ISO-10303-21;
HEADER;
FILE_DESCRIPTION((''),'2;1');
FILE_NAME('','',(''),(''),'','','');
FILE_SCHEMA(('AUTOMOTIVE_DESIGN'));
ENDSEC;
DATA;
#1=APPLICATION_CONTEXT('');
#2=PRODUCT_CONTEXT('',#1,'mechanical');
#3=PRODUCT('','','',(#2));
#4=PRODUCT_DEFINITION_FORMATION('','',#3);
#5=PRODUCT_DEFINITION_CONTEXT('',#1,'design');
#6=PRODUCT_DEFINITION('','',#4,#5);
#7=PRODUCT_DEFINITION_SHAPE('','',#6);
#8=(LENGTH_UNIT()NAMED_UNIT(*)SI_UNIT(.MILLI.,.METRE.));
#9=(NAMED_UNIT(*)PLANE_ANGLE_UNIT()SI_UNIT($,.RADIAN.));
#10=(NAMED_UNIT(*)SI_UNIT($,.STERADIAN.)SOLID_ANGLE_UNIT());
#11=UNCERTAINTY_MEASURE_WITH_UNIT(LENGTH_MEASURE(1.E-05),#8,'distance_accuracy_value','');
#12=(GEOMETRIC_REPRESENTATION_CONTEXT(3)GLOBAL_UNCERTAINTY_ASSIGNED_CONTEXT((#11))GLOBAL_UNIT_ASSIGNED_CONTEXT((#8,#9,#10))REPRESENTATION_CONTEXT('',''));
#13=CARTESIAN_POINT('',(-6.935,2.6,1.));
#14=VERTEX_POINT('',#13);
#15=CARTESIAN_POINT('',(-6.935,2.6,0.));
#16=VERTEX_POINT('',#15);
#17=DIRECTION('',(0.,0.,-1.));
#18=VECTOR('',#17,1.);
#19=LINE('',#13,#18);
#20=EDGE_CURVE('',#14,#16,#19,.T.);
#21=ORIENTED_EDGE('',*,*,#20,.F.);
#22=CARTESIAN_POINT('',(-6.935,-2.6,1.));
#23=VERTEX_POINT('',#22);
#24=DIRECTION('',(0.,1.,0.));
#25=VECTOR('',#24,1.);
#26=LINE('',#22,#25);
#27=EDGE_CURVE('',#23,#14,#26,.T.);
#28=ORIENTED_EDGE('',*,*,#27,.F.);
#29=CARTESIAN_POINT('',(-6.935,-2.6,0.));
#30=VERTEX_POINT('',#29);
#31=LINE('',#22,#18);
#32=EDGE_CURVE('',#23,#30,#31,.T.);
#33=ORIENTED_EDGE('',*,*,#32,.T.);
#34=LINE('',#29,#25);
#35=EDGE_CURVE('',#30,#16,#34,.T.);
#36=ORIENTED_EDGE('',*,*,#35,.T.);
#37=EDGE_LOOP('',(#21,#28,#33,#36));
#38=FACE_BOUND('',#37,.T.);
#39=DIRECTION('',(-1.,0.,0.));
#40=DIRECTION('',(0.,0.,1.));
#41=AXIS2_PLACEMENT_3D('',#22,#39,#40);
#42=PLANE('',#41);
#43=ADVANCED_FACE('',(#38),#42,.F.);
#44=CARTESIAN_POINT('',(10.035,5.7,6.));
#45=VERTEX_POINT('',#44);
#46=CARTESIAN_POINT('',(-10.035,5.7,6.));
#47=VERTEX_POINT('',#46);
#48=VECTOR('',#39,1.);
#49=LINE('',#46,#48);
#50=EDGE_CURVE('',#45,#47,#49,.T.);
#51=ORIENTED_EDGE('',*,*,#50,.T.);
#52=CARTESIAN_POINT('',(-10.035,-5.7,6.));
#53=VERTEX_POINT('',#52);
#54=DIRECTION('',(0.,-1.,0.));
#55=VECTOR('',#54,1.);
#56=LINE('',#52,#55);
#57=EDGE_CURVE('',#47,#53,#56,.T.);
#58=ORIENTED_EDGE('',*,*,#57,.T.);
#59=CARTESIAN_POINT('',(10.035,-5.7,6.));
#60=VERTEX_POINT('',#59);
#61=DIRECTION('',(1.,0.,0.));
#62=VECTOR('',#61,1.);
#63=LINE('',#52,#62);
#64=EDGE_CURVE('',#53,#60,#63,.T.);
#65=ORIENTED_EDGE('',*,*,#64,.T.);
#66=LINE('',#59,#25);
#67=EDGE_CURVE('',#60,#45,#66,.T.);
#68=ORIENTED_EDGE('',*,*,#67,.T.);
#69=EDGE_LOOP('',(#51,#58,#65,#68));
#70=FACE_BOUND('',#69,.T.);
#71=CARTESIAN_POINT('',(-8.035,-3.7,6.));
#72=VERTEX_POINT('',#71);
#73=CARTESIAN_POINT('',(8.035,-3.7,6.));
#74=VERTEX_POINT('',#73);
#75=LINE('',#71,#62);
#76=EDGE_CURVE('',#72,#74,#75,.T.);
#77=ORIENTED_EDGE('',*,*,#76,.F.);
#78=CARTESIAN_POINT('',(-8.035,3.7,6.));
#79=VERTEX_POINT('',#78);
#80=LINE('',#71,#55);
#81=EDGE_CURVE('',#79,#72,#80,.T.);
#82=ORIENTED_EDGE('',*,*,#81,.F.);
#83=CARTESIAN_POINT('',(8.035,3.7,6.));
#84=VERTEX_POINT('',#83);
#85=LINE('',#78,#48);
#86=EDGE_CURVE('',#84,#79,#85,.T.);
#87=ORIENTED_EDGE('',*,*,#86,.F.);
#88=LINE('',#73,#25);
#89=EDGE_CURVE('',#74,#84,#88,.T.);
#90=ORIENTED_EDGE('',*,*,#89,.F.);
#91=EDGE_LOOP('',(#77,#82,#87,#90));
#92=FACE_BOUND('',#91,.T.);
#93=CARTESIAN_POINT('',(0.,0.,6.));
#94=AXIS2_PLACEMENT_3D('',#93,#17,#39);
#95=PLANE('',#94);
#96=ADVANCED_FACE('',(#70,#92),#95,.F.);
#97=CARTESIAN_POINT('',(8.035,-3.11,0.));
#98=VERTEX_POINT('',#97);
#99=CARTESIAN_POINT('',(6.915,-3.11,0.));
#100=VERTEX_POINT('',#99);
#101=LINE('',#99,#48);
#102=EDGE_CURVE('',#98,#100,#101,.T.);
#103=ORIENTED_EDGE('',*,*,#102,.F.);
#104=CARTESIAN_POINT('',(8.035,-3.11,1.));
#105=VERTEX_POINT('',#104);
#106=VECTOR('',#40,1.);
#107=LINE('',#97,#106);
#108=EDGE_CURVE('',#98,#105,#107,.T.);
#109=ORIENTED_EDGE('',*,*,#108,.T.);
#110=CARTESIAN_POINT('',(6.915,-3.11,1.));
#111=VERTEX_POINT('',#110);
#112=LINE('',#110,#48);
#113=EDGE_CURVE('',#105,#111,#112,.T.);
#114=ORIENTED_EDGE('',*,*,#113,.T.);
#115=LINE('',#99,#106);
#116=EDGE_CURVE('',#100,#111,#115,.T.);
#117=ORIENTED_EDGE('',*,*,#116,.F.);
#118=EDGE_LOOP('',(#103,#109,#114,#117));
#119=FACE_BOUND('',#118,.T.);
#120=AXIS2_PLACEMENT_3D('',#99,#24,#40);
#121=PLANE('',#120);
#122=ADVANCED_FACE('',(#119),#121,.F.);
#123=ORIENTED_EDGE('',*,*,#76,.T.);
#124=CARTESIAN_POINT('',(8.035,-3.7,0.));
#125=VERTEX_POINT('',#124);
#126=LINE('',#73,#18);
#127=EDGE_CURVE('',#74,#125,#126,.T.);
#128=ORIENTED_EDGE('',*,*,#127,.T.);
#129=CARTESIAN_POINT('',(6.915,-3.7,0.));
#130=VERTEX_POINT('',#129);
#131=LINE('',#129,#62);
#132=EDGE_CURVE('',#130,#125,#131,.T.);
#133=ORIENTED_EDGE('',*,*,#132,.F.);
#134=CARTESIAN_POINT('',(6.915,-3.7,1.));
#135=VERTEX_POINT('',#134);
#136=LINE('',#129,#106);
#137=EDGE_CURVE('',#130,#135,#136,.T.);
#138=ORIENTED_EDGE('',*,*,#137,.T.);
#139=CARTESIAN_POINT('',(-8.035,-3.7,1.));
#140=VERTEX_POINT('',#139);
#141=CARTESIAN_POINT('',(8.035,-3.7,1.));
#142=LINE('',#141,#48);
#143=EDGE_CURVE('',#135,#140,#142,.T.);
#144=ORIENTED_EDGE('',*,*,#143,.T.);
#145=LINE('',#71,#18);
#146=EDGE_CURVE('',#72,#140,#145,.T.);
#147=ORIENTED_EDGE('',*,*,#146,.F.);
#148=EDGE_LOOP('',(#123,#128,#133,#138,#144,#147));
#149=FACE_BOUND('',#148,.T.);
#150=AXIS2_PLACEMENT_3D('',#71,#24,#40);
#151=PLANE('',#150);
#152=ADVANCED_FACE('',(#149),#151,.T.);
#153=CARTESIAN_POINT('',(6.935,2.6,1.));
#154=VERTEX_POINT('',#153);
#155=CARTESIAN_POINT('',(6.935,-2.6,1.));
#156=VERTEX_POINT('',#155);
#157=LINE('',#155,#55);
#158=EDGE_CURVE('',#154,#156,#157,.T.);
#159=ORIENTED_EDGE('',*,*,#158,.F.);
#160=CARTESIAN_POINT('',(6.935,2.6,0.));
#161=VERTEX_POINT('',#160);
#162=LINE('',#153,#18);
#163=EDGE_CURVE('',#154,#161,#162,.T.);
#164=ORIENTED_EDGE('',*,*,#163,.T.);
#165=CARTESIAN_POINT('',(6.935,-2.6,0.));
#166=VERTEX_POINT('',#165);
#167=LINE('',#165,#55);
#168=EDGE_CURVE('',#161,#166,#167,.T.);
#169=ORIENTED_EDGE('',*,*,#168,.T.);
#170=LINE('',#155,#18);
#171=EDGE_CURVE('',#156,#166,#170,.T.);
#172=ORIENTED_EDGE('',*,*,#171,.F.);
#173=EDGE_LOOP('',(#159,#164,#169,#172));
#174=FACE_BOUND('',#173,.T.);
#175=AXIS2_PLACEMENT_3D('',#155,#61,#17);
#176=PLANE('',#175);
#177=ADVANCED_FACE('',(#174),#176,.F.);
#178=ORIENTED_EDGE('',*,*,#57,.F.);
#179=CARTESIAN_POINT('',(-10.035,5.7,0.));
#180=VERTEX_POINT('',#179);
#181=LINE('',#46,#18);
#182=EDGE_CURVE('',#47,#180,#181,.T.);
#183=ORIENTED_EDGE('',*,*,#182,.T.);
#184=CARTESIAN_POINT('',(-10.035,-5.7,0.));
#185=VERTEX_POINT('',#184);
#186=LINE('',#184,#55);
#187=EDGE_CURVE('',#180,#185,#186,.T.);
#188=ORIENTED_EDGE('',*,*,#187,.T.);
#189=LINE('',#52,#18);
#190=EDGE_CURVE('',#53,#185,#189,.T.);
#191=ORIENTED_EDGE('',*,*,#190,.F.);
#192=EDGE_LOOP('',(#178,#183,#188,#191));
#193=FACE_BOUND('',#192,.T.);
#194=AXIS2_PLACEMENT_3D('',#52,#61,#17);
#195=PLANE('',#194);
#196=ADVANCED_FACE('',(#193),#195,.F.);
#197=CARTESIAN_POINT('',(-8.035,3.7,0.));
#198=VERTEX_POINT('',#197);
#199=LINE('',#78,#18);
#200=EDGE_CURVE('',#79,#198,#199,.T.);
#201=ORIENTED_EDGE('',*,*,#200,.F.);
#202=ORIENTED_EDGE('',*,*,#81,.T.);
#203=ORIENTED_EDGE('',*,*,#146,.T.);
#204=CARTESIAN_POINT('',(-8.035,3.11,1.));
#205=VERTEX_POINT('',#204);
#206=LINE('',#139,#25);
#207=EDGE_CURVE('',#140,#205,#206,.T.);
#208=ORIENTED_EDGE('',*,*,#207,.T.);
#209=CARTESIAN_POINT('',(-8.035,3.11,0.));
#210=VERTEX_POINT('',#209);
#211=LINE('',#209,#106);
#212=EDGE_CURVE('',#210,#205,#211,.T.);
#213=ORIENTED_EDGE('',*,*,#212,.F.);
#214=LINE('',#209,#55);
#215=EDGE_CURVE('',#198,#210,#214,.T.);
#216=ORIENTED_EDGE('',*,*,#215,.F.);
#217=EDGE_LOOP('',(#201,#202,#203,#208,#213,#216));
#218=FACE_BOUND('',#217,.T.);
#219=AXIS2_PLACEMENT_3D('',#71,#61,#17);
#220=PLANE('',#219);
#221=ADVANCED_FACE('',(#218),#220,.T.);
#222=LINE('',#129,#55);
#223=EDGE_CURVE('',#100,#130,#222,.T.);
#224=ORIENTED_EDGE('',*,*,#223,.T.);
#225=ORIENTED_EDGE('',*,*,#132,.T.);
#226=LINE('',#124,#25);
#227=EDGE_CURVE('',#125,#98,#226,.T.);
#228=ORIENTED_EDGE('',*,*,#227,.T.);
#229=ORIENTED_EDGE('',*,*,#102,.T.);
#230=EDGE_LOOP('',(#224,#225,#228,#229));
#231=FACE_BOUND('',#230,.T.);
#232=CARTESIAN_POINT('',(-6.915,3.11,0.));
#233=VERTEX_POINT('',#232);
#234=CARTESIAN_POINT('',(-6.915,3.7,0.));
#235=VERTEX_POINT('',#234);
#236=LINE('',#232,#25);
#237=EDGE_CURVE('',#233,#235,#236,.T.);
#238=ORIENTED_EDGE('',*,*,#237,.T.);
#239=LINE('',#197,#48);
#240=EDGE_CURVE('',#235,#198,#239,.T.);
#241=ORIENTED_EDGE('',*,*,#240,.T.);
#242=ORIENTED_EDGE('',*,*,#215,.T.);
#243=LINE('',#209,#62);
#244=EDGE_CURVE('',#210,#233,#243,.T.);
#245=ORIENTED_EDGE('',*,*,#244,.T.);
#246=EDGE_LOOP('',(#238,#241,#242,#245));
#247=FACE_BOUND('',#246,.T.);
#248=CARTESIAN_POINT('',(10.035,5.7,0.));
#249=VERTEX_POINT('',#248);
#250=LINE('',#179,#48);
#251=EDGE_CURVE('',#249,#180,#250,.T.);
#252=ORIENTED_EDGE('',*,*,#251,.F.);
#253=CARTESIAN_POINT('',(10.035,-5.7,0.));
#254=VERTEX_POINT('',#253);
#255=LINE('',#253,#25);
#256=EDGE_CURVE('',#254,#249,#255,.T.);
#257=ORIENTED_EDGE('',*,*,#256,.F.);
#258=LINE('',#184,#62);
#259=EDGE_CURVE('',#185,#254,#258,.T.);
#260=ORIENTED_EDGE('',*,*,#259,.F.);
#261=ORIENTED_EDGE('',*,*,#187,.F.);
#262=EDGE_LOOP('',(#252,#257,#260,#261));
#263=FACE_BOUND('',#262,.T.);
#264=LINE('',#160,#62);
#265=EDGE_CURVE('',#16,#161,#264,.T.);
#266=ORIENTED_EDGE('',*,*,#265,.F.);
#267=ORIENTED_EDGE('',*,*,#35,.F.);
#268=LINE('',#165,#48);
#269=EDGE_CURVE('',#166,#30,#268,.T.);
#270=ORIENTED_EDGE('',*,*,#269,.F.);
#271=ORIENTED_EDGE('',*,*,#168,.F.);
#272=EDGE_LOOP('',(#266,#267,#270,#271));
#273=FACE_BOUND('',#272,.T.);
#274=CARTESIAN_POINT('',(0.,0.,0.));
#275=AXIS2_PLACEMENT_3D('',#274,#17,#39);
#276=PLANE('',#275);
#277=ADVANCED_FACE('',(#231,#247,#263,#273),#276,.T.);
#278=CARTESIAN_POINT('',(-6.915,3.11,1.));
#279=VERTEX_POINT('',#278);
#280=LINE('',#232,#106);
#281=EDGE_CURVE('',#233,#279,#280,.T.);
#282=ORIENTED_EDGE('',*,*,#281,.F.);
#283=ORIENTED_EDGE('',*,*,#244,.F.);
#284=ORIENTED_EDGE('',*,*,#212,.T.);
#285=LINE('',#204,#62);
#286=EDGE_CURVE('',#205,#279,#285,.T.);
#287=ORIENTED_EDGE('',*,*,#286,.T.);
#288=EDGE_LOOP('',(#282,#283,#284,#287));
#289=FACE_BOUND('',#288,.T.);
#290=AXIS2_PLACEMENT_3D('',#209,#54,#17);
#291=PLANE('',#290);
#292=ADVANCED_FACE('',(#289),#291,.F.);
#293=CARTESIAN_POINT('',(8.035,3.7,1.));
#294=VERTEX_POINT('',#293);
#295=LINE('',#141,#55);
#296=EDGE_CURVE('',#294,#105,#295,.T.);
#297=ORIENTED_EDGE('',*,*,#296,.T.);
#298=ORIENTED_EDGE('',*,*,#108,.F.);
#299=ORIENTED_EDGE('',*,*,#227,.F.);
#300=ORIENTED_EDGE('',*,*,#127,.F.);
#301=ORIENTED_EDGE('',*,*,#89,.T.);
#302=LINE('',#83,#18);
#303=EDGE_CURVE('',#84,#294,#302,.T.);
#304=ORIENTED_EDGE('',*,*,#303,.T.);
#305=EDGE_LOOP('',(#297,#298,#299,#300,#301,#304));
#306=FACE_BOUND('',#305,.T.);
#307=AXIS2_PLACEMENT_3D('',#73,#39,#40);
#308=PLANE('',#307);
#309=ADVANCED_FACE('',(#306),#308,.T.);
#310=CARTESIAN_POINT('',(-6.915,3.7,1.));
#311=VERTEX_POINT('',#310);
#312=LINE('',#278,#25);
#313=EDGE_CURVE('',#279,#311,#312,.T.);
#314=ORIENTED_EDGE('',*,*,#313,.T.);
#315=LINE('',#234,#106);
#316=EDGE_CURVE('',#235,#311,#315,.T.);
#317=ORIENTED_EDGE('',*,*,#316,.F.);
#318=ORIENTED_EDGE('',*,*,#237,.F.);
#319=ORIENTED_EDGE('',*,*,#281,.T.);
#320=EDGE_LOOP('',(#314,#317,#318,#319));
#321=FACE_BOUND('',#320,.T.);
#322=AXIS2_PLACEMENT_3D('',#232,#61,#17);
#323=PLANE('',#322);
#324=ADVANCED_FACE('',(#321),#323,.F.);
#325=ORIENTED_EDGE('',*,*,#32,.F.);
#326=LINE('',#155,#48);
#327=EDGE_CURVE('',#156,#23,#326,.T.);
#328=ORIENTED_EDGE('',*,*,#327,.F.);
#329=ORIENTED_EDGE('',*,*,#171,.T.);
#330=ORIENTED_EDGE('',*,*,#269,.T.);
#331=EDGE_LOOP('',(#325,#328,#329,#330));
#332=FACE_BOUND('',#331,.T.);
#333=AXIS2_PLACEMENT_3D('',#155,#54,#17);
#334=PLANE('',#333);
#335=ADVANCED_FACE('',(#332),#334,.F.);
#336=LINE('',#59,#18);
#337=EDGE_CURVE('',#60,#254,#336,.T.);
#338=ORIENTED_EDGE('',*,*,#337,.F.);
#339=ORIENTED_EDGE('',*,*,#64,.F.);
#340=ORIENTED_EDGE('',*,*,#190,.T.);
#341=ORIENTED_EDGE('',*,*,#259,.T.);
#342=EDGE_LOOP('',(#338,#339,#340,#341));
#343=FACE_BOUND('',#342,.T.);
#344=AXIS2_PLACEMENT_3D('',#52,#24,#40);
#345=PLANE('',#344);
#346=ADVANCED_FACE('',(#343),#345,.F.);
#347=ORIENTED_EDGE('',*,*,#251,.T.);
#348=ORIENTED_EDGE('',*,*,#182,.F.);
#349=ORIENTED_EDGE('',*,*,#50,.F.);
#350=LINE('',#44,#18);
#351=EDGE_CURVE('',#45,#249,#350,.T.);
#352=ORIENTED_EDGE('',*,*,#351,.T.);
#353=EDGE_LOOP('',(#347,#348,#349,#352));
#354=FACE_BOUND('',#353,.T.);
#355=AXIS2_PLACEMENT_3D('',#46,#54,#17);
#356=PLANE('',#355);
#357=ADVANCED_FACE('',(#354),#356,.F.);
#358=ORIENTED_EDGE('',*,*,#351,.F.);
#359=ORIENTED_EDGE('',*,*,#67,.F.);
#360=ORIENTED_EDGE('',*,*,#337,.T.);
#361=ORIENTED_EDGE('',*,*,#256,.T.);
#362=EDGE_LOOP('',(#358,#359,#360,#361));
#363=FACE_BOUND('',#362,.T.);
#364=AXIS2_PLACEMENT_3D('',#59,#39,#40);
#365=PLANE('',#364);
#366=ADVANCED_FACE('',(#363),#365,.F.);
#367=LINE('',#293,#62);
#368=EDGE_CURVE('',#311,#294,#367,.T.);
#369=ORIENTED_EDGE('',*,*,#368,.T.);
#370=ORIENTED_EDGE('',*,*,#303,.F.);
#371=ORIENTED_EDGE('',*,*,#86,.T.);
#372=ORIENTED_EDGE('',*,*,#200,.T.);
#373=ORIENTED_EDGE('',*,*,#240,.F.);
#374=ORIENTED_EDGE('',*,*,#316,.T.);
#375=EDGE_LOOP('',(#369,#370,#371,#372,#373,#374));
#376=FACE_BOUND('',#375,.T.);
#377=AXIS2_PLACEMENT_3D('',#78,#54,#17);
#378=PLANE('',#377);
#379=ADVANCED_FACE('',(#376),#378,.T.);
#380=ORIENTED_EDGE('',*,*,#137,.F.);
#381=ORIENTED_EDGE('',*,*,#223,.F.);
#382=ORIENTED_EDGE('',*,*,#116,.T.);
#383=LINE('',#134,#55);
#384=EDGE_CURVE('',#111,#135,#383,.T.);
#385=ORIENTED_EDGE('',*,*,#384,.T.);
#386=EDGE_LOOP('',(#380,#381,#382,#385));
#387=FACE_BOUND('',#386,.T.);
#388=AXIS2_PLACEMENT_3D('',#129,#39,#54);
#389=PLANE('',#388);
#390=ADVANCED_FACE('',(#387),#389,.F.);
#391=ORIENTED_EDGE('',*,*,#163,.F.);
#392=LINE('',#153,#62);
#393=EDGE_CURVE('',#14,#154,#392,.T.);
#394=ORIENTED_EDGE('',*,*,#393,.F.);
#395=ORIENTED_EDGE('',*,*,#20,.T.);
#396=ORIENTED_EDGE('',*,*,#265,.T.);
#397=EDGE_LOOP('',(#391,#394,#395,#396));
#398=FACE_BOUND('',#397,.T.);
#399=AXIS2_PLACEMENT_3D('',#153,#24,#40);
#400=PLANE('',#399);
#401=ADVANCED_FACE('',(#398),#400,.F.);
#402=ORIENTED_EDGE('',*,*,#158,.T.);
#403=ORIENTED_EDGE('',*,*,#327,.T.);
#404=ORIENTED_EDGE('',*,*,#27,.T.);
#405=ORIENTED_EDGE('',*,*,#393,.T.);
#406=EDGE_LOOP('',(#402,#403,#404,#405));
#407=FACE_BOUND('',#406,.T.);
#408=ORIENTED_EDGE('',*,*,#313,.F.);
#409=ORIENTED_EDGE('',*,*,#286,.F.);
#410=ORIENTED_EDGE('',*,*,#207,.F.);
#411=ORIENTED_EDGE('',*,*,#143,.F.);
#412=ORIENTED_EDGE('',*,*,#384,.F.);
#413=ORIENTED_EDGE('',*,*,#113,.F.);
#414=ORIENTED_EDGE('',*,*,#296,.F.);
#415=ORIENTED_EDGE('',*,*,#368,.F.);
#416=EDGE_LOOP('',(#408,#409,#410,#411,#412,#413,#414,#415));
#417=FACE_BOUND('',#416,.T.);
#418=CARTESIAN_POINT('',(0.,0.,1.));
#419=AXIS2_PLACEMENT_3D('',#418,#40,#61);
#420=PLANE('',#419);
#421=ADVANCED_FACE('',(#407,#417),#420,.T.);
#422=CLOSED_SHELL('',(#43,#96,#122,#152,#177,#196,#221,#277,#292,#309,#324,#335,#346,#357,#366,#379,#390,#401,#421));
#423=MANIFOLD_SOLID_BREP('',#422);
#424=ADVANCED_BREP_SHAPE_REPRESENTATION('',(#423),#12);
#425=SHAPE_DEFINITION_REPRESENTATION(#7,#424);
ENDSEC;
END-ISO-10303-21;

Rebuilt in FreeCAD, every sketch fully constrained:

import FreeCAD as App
import Part
import Sketcher
from FreeCAD import Vector

doc = App.newDocument("Part")
body = doc.addObject("PartDesign::Body", "Body")

# Sketch on XY plane
sketch1 = body.newObject("Sketcher::SketchObject", "Sketch")
sketch1.AttachmentSupport = (doc.getObject("XY_Plane"), [""])
sketch1.MapMode = "FlatFace"
sketch1.addGeometry([
    Part.LineSegment(Vector(-10, 6, 0), Vector(-10, -6, 0)),  # 0
    Part.LineSegment(Vector(-10, -6, 0), Vector(10, -6, 0)),  # 1
    Part.LineSegment(Vector(10, -6, 0), Vector(10, 6, 0)),  # 2
    Part.LineSegment(Vector(10, 6, 0), Vector(-10, 6, 0)),  # 3
    Part.LineSegment(Vector(8, -4, 0), Vector(-8, -4, 0)),  # 4
    Part.LineSegment(Vector(-8, -4, 0), Vector(-8, 4, 0)),  # 5
    Part.LineSegment(Vector(-8, 4, 0), Vector(8, 4, 0)),  # 6
    Part.LineSegment(Vector(8, 4, 0), Vector(8, -4, 0)),  # 7
], False)
sketch1.addConstraint([
    Sketcher.Constraint("Coincident", 0, 2, 1, 1),
    Sketcher.Constraint("Coincident", 1, 2, 2, 1),
    Sketcher.Constraint("Coincident", 2, 2, 3, 1),
    Sketcher.Constraint("Coincident", 3, 2, 0, 1),
    Sketcher.Constraint("Coincident", 4, 2, 5, 1),
    Sketcher.Constraint("Coincident", 5, 2, 6, 1),
    Sketcher.Constraint("Coincident", 6, 2, 7, 1),
    Sketcher.Constraint("Coincident", 7, 2, 4, 1),
    Sketcher.Constraint("Vertical", 0),
    Sketcher.Constraint("Horizontal", 1),
    Sketcher.Constraint("Vertical", 2),
    Sketcher.Constraint("Horizontal", 3),
    Sketcher.Constraint("Horizontal", 4),
    Sketcher.Constraint("Vertical", 5),
    Sketcher.Constraint("Horizontal", 6),
    Sketcher.Constraint("Vertical", 7),
    Sketcher.Constraint("Symmetric", 0, 2, 2, 2, -1, 1),
    Sketcher.Constraint("Symmetric", 4, 2, 6, 2, -1, 1),
    Sketcher.Constraint("DistanceY", 0, 2, 0, 1, 11.4),
    Sketcher.Constraint("DistanceY", 5, 1, 5, 2, 7.4),
    Sketcher.Constraint("DistanceX", 0, 2, 4, 2, 2.0),
    Sketcher.Constraint("DistanceX", 1, 1, 1, 2, 20.07),
])
pad1 = body.newObject("PartDesign::Pad", "Pad")
pad1.Profile = sketch1
pad1.Length = 6

# Sketch on XY plane
sketch2 = body.newObject("Sketcher::SketchObject", "Sketch001")
sketch2.AttachmentSupport = (doc.getObject("XY_Plane"), [""])
sketch2.MapMode = "FlatFace"
sketch2.addGeometry([
    Part.LineSegment(Vector(8, 4, 0), Vector(8, -4, 0)),  # 0
    Part.LineSegment(Vector(8, -4, 0), Vector(-8, -4, 0)),  # 1
    Part.LineSegment(Vector(-8, -4, 0), Vector(-8, 4, 0)),  # 2
    Part.LineSegment(Vector(-8, 4, 0), Vector(8, 4, 0)),  # 3
    Part.LineSegment(Vector(-7, -3, 0), Vector(7, -3, 0)),  # 4
    Part.LineSegment(Vector(7, -3, 0), Vector(7, 3, 0)),  # 5
    Part.LineSegment(Vector(7, 3, 0), Vector(-7, 3, 0)),  # 6
    Part.LineSegment(Vector(-7, 3, 0), Vector(-7, -3, 0)),  # 7
], False)
sketch2.addConstraint([
    Sketcher.Constraint("Coincident", 0, 2, 1, 1),
    Sketcher.Constraint("Coincident", 1, 2, 2, 1),
    Sketcher.Constraint("Coincident", 2, 2, 3, 1),
    Sketcher.Constraint("Coincident", 3, 2, 0, 1),
    Sketcher.Constraint("Coincident", 4, 2, 5, 1),
    Sketcher.Constraint("Coincident", 5, 2, 6, 1),
    Sketcher.Constraint("Coincident", 6, 2, 7, 1),
    Sketcher.Constraint("Coincident", 7, 2, 4, 1),
    Sketcher.Constraint("Vertical", 0),
    Sketcher.Constraint("Horizontal", 1),
    Sketcher.Constraint("Vertical", 2),
    Sketcher.Constraint("Horizontal", 3),
    Sketcher.Constraint("Horizontal", 4),
    Sketcher.Constraint("Vertical", 5),
    Sketcher.Constraint("Horizontal", 6),
    Sketcher.Constraint("Vertical", 7),
    Sketcher.Constraint("Symmetric", 0, 2, 2, 2, -1, 1),
    Sketcher.Constraint("Symmetric", 4, 2, 6, 2, -1, 1),
    Sketcher.Constraint("DistanceY", 0, 2, 0, 1, 7.4),
    Sketcher.Constraint("DistanceY", 5, 1, 5, 2, 5.2),
    Sketcher.Constraint("DistanceX", 1, 2, 1, 1, 16.07),
    Sketcher.Constraint("DistanceX", 4, 1, 4, 2, 13.87),
])
pad2 = body.newObject("PartDesign::Pad", "Pad001")
pad2.Profile = sketch2
pad2.Length = 1

# Sketch on XY plane
sketch3 = body.newObject("Sketcher::SketchObject", "Sketch002")
sketch3.AttachmentSupport = (doc.getObject("XY_Plane"), [""])
sketch3.MapMode = "FlatFace"
sketch3.AttachmentOffset = App.Placement(Vector(0, 0, 1), App.Rotation())
sketch3.addGeometry([
    Part.LineSegment(Vector(-8, 3.7, 0), Vector(-8, 3.1, 0)),  # 0
    Part.LineSegment(Vector(-8, 3.1, 0), Vector(-6.9, 3.1, 0)),  # 1
    Part.LineSegment(Vector(-6.9, 3.1, 0), Vector(-6.9, 3.7, 0)),  # 2
    Part.LineSegment(Vector(-6.9, 3.7, 0), Vector(-8, 3.7, 0)),  # 3
    Part.LineSegment(Vector(6.9, -3.1, 0), Vector(6.9, -3.7, 0)),  # 4
    Part.LineSegment(Vector(6.9, -3.7, 0), Vector(8, -3.7, 0)),  # 5
    Part.LineSegment(Vector(8, -3.7, 0), Vector(8, -3.1, 0)),  # 6
    Part.LineSegment(Vector(8, -3.1, 0), Vector(6.9, -3.1, 0)),  # 7
], False)
sketch3.addConstraint([
    Sketcher.Constraint("Coincident", 0, 2, 1, 1),
    Sketcher.Constraint("Coincident", 1, 2, 2, 1),
    Sketcher.Constraint("Coincident", 2, 2, 3, 1),
    Sketcher.Constraint("Coincident", 3, 2, 0, 1),
    Sketcher.Constraint("Coincident", 4, 2, 5, 1),
    Sketcher.Constraint("Coincident", 5, 2, 6, 1),
    Sketcher.Constraint("Coincident", 6, 2, 7, 1),
    Sketcher.Constraint("Coincident", 7, 2, 4, 1),
    Sketcher.Constraint("Vertical", 0),
    Sketcher.Constraint("Horizontal", 1),
    Sketcher.Constraint("Vertical", 2),
    Sketcher.Constraint("Horizontal", 3),
    Sketcher.Constraint("Vertical", 4),
    Sketcher.Constraint("Horizontal", 5),
    Sketcher.Constraint("Vertical", 6),
    Sketcher.Constraint("Horizontal", 7),
    Sketcher.Constraint("Symmetric", 2, 2, 4, 2, -1, 1),
    Sketcher.Constraint("Symmetric", 0, 2, 6, 2, -1, 1),
    Sketcher.Constraint("DistanceX", 1, 1, 1, 2, 1.12),
    Sketcher.Constraint("DistanceY", 0, 2, 0, 1, 0.59),
    Sketcher.Constraint("DistanceY", -1, 1, 2, 2, 3.7),
    Sketcher.Constraint("DistanceX", 1, 2, 4, 2, 13.83),
])
pocket1 = body.newObject("PartDesign::Pocket", "Pocket")
pocket1.Profile = sketch3
pocket1.Length = 1

doc.recompute()
